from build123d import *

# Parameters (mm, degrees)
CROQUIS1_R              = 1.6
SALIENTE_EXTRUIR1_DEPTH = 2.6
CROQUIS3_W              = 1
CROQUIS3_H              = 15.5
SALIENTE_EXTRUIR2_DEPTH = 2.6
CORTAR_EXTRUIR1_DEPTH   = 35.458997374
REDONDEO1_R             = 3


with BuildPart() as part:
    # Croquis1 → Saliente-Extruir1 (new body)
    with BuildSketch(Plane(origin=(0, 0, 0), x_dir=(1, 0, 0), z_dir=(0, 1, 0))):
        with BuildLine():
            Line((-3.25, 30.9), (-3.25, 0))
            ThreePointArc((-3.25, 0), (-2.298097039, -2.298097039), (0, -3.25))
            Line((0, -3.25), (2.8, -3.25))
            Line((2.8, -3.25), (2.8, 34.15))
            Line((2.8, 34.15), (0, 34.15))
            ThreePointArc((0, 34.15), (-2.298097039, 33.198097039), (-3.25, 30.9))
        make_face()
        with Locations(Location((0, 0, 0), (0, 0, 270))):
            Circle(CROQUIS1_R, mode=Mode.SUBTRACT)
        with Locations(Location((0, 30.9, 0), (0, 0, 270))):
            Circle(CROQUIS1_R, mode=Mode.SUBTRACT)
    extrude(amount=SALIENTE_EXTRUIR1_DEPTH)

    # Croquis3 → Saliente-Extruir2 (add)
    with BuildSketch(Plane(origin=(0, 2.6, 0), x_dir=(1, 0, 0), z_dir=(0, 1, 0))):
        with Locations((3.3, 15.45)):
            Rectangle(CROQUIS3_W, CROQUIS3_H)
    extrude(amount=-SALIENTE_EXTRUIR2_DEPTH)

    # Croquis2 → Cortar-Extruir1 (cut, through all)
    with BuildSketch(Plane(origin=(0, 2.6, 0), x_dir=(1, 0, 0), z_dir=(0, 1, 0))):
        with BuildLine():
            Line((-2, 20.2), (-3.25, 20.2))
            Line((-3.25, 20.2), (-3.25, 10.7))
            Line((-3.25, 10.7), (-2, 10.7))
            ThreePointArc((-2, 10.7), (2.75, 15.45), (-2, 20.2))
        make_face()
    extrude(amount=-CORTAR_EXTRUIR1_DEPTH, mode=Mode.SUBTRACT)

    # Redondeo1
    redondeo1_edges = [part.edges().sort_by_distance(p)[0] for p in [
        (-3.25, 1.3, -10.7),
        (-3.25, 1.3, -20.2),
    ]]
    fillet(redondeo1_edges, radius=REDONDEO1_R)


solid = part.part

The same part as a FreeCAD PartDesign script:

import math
import FreeCAD as App
import Part
import Sketcher
from FreeCAD import Vector


def edges_at(feature, points):
    """Names of the edges that pass closest to the given points."""
    edges = feature.Shape.Edges
    near = lambda p: min(range(len(edges)), key=lambda i: edges[i].distToShape(Part.Vertex(*p))[0])
    return sorted({f"Edge{near(p) + 1}" for p in points})

doc = App.newDocument("Part")
params = doc.addObject("Spreadsheet::Sheet", "Params")
for row, (alias, value) in enumerate([
    ("sketch1_diameter", "3.2 mm"),
    ("sketch1_radius", "3.25 mm"),
    ("sketch1_width", "2.8 mm"),
    ("sketch1_height", "30.9 mm"),
    ("pad1_length", "2.6 mm"),
    ("sketch2_width", "1 mm"),
    ("sketch2_height", "15.5 mm"),
    ("pad2_length", "2.6 mm"),
    ("sketch3_radius", "4.75 mm"),
    ("sketch3_width", "1.25 mm"),
    ("fillet_radius", "3 mm"),
], start=1):
    params.set(f"A{row}", alias)
    params.set(f"B{row}", "=" + value)
    params.setAlias(f"B{row}", alias)

body = doc.addObject("PartDesign::Body", "Body")

# Sketch on XZ plane
sketch1 = body.newObject("Sketcher::SketchObject", "Sketch")
sketch1.AttachmentSupport = (doc.getObject("XZ_Plane"), [""])
sketch1.MapMode = "FlatFace"
sketch1.addGeometry([
    Part.LineSegment(Vector(-3.25, -30.9, 0), Vector(-3.25, 0, 0)),  # 0
    Part.ArcOfCircle(Part.Circle(Vector(0, 0, 0), Vector(0, 0, 1), 3.25), math.radians(90), math.radians(180)),  # 1
    Part.LineSegment(Vector(0, 3.25, 0), Vector(2.8, 3.25, 0)),  # 2
    Part.LineSegment(Vector(2.8, 3.25, 0), Vector(2.8, -34.15, 0)),  # 3
    Part.LineSegment(Vector(2.8, -34.15, 0), Vector(0, -34.15, 0)),  # 4
    Part.ArcOfCircle(Part.Circle(Vector(0, -30.9, 0), Vector(0, 0, 1), 3.25), math.radians(180), math.radians(270)),  # 5
    Part.Circle(Vector(0, 0, 0), Vector(0, 0, 1), 1.6),  # 6
    Part.Circle(Vector(0, -30.9, 0), Vector(0, 0, 1), 1.6),  # 7
], False)
sketch1.addConstraint([
    Sketcher.Constraint("Tangent", 0, 2, 1, 2),
    Sketcher.Constraint("Tangent", 1, 1, 2, 1),
    Sketcher.Constraint("Coincident", 2, 2, 3, 1),
    Sketcher.Constraint("Coincident", 3, 2, 4, 1),
    Sketcher.Constraint("Tangent", 4, 2, 5, 2),
    Sketcher.Constraint("Tangent", 5, 1, 0, 1),
    Sketcher.Constraint("Vertical", 0),
    Sketcher.Constraint("Horizontal", 2),
    Sketcher.Constraint("Vertical", 3),
    Sketcher.Constraint("Horizontal", 4),
    Sketcher.Constraint("Coincident", 1, 3, -1, 1),
    Sketcher.Constraint("Coincident", 6, 3, -1, 1),
    Sketcher.Constraint("Coincident", 7, 3, 5, 3),
    Sketcher.Constraint("Equal", 1, 5),
    Sketcher.Constraint("Equal", 6, 7),
    Sketcher.Constraint("Diameter", 6, 3.2),
    Sketcher.Constraint("Radius", 1, 3.25),
    Sketcher.Constraint("DistanceX", 2, 1, 2, 2, 2.8),
    Sketcher.Constraint("DistanceY", 0, 1, 0, 2, 30.9),
])
sketch1.setExpression("Constraints[15]", "Params.sketch1_diameter")
sketch1.setExpression("Constraints[16]", "Params.sketch1_radius")
sketch1.setExpression("Constraints[17]", "Params.sketch1_width")
sketch1.setExpression("Constraints[18]", "Params.sketch1_height")
pad1 = body.newObject("PartDesign::Pad", "Pad")
pad1.Profile = sketch1
pad1.setExpression("Length", "Params.pad1_length")
pad1.Reversed = True

# Sketch on XZ plane
sketch2 = body.newObject("Sketcher::SketchObject", "Sketch001")
sketch2.AttachmentSupport = (doc.getObject("XZ_Plane"), [""])
sketch2.MapMode = "FlatFace"
sketch2.AttachmentOffset = App.Placement(Vector(0, 0, -2.6), App.Rotation())
sketch2.addGeometry([
    Part.LineSegment(Vector(2.8, -23.2, 0), Vector(2.8, -7.7, 0)),
    Part.LineSegment(Vector(2.8, -7.7, 0), Vector(3.8, -7.7, 0)),
    Part.LineSegment(Vector(3.8, -7.7, 0), Vector(3.8, -23.2, 0)),
    Part.LineSegment(Vector(3.8, -23.2, 0), Vector(2.8, -23.2, 0)),
], False)
sketch2.addConstraint([
    Sketcher.Constraint("Coincident", 0, 2, 1, 1),
    Sketcher.Constraint("Coincident", 1, 2, 2, 1),
    Sketcher.Constraint("Coincident", 2, 2, 3, 1),
    Sketcher.Constraint("Coincident", 3, 2, 0, 1),
    Sketcher.Constraint("Vertical", 0),
    Sketcher.Constraint("Horizontal", 1),
    Sketcher.Constraint("Vertical", 2),
    Sketcher.Constraint("Horizontal", 3),
    Sketcher.Constraint("DistanceX", 1, 1, 1, 2, 1.0),
    Sketcher.Constraint("DistanceY", 0, 1, 0, 2, 15.5),
    Sketcher.Constraint("DistanceX", -1, 1, 0, 2, 2.8),
    Sketcher.Constraint("DistanceY", 0, 2, -1, 1, 7.7),
])
sketch2.setExpression("Constraints[8]", "Params.sketch2_width")
sketch2.setExpression("Constraints[9]", "Params.sketch2_height")
pad2 = body.newObject("PartDesign::Pad", "Pad001")
pad2.Profile = sketch2
pad2.setExpression("Length", "Params.pad2_length")

# Sketch on XZ plane
sketch3 = body.newObject("Sketcher::SketchObject", "Sketch002")
sketch3.AttachmentSupport = (doc.getObject("XZ_Plane"), [""])
sketch3.MapMode = "FlatFace"
sketch3.AttachmentOffset = App.Placement(Vector(0, 0, -2.6), App.Rotation())
sketch3.addGeometry([
    Part.LineSegment(Vector(-2, -20.2, 0), Vector(-3.25, -20.2, 0)),
    Part.LineSegment(Vector(-3.25, -20.2, 0), Vector(-3.25, -10.7, 0)),
    Part.LineSegment(Vector(-3.25, -10.7, 0), Vector(-2, -10.7, 0)),
    Part.ArcOfCircle(Part.Circle(Vector(-2, -15.45, 0), Vector(0, 0, 1), 4.75), math.radians(-90), math.radians(90)),
], False)
sketch3.addConstraint([
    Sketcher.Constraint("Coincident", 0, 2, 1, 1),
    Sketcher.Constraint("Coincident", 1, 2, 2, 1),
    Sketcher.Constraint("Tangent", 2, 2, 3, 2),
    Sketcher.Constraint("Tangent", 3, 1, 0, 1),
    Sketcher.Constraint("Horizontal", 0),
    Sketcher.Constraint("Vertical", 1),
    Sketcher.Constraint("Horizontal", 2),
    Sketcher.Constraint("Radius", 3, 4.75),
    Sketcher.Constraint("DistanceX", 3, 3, -1, 1, 2.0),
    Sketcher.Constraint("DistanceX", 0, 2, 0, 1, 1.25),
    Sketcher.Constraint("DistanceY", 0, 2, -1, 1, 20.2),
])
sketch3.setExpression("Constraints[7]", "Params.sketch3_radius")
sketch3.setExpression("Constraints[9]", "Params.sketch3_width")
pocket1 = body.newObject("PartDesign::Pocket", "Pocket")
pocket1.Profile = sketch3
pocket1.Type = "ThroughAll"
pocket1.Reversed = True
doc.recompute()

fillet = body.newObject("PartDesign::Fillet", "Fillet")
fillet.Base = (pocket1, edges_at(pocket1, [(-3.25, 1.3, -10.7), (-3.25, 1.3, -20.2)]))
fillet.setExpression("Radius", "Params.fillet_radius")

doc.recompute()
